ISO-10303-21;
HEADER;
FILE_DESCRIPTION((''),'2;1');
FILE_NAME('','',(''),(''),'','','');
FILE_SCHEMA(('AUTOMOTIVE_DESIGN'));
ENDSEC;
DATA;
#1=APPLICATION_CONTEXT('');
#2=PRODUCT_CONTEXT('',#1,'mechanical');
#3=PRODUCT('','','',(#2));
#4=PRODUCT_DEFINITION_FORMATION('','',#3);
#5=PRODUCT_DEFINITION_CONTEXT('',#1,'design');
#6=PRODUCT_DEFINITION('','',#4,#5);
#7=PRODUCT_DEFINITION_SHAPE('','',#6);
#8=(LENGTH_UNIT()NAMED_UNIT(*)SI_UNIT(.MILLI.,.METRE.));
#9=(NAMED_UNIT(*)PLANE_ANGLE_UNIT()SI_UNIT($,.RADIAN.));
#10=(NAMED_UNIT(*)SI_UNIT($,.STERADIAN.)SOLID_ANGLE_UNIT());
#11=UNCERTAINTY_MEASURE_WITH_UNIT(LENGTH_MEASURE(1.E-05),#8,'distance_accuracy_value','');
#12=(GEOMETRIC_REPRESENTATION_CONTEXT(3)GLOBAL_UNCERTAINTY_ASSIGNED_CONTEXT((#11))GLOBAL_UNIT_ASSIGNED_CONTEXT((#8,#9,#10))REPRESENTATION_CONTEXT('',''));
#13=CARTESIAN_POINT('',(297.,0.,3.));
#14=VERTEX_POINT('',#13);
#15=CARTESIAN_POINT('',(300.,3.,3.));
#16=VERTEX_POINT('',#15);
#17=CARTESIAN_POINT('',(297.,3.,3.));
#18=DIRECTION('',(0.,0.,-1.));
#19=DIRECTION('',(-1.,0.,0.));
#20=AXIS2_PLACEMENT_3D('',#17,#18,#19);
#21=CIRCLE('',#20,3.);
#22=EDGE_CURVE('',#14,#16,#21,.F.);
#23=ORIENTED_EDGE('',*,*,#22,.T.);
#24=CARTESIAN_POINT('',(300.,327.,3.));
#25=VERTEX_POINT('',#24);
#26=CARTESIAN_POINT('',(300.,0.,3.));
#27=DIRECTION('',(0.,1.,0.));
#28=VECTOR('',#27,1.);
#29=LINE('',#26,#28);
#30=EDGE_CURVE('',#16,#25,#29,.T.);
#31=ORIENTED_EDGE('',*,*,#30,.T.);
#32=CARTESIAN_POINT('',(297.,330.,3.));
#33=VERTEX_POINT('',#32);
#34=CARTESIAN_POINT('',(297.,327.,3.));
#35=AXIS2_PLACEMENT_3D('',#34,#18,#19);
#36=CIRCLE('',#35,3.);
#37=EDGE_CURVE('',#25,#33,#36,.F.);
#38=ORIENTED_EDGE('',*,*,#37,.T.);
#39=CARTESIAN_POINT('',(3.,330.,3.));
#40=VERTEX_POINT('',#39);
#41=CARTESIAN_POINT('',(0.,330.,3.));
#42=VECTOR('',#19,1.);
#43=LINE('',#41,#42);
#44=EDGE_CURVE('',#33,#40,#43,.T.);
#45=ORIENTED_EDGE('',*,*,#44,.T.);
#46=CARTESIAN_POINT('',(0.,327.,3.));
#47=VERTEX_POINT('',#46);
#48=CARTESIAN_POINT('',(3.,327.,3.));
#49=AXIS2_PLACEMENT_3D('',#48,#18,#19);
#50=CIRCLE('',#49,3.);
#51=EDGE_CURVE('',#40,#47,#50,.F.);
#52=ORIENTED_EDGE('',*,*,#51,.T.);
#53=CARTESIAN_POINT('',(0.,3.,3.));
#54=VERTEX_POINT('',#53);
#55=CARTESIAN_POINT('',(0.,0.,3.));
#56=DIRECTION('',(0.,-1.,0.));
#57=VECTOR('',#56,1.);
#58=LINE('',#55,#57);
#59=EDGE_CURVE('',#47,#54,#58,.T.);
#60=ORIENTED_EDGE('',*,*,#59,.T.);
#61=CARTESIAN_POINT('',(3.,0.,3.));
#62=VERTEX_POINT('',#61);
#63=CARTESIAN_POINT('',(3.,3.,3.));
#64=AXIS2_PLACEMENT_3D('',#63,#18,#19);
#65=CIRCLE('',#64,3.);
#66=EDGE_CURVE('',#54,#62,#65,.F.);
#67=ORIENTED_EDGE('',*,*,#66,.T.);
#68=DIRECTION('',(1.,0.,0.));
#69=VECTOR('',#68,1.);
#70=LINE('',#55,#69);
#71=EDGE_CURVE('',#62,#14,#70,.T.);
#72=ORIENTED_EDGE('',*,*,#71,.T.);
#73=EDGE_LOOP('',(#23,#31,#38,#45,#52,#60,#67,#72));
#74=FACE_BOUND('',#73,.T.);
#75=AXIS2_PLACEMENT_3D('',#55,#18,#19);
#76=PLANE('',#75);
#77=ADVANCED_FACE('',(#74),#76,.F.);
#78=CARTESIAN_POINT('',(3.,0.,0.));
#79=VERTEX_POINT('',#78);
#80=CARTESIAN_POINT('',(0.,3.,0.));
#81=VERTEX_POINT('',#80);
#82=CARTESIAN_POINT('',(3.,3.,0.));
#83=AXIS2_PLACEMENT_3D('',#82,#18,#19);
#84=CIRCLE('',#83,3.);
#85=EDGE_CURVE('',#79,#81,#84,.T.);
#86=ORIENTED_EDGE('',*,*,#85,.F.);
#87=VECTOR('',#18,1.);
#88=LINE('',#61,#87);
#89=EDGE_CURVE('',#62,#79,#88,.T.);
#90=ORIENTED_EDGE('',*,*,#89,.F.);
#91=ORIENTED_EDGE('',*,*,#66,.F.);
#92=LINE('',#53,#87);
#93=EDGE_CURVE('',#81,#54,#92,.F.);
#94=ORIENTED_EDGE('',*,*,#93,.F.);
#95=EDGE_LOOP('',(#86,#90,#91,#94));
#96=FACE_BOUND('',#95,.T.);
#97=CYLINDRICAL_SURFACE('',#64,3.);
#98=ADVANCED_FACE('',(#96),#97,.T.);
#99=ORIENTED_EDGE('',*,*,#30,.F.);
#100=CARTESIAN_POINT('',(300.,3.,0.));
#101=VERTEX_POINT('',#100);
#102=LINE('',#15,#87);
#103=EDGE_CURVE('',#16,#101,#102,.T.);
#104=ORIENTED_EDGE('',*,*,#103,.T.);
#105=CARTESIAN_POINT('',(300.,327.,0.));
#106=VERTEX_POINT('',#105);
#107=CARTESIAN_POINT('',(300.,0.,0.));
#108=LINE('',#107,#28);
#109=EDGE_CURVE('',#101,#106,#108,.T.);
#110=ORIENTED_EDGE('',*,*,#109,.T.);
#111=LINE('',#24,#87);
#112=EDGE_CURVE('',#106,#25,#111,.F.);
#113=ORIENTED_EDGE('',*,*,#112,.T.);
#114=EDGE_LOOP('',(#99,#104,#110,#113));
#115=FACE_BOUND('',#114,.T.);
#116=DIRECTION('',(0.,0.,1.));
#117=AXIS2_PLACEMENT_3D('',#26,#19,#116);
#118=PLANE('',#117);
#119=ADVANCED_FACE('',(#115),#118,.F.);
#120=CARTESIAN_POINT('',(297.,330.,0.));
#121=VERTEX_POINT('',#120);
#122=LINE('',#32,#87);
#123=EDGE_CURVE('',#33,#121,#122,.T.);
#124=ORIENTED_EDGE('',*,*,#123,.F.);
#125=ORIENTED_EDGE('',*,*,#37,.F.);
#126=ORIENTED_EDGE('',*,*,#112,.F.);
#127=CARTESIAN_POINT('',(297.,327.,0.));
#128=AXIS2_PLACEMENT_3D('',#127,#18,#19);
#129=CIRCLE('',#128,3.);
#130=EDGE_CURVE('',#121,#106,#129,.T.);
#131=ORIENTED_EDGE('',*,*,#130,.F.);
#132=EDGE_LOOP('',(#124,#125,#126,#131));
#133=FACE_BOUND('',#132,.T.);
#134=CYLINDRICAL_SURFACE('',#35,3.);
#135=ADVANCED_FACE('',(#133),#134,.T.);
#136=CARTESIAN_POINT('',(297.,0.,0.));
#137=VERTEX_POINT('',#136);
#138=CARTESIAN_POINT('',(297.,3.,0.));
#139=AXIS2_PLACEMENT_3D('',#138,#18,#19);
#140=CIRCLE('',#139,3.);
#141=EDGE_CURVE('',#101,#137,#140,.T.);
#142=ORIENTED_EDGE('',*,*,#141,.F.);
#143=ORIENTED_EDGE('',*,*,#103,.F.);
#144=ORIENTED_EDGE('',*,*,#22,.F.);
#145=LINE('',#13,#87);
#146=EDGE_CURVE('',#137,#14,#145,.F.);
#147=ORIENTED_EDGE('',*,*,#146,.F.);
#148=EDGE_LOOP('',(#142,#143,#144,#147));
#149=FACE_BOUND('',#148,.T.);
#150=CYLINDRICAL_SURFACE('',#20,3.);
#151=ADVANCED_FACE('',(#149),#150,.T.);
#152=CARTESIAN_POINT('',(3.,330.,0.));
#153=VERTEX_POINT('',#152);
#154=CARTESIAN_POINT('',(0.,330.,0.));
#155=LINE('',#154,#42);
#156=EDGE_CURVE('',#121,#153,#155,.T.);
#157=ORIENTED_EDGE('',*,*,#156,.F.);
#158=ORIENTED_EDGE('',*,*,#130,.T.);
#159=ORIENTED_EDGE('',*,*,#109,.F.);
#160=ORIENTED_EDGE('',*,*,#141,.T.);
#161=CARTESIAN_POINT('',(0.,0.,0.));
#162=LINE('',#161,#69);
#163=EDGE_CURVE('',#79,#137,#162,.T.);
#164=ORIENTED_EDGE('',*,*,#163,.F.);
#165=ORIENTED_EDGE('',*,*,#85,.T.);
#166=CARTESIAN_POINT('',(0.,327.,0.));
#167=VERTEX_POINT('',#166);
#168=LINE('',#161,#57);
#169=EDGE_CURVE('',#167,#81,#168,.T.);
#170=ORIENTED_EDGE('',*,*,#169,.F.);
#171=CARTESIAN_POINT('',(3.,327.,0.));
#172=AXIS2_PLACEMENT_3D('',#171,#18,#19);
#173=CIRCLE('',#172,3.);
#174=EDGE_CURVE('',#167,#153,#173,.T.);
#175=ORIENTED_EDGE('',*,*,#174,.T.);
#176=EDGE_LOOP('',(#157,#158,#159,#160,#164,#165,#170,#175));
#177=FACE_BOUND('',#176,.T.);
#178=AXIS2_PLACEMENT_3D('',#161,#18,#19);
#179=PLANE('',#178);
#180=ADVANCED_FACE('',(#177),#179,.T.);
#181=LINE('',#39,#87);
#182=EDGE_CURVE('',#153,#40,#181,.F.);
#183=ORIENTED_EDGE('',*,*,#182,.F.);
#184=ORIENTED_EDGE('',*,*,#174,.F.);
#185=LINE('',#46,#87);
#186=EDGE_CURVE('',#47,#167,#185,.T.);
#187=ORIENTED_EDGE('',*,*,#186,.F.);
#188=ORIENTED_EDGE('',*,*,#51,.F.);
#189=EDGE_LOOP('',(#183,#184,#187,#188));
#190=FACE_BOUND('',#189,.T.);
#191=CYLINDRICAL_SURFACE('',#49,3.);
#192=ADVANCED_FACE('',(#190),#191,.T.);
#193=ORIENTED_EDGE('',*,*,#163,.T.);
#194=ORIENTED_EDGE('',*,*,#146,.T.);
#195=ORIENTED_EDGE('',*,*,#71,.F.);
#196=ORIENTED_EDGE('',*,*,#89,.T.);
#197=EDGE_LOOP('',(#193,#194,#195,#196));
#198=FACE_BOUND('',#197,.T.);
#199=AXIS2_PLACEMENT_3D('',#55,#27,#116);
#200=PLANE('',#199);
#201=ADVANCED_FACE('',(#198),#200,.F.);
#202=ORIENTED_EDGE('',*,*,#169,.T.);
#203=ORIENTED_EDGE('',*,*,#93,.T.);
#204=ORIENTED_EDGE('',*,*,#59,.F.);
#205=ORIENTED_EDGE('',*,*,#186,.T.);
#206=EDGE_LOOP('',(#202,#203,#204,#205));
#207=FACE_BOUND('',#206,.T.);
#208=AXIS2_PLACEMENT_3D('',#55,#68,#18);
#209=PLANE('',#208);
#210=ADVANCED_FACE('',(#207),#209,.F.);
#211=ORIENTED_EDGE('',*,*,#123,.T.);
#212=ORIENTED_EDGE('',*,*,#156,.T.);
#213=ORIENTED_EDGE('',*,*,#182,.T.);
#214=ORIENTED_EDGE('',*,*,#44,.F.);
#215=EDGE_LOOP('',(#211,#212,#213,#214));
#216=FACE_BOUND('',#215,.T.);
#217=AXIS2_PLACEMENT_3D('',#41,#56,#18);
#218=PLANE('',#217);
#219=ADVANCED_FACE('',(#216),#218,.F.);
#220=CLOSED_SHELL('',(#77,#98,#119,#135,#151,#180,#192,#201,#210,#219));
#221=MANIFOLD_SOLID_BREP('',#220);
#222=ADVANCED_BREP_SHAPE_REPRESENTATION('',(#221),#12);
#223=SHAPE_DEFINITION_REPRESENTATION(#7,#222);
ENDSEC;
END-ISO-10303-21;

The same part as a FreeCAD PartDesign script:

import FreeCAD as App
import Part
import Sketcher
from FreeCAD import Vector


def edges_at(feature, points):
    """Names of the edges that pass closest to the given points."""
    edges = feature.Shape.Edges
    near = lambda p: min(range(len(edges)), key=lambda i: edges[i].distToShape(Part.Vertex(*p))[0])
    return sorted({f"Edge{near(p) + 1}" for p in points})

doc = App.newDocument("Part")
body = doc.addObject("PartDesign::Body", "Body")

# Sketch on XY plane
sketch1 = body.newObject("Sketcher::SketchObject", "Sketch")
sketch1.AttachmentSupport = (doc.getObject("XY_Plane"), [""])
sketch1.MapMode = "FlatFace"
sketch1.addGeometry([
    Part.LineSegment(Vector(0, 330, 0), Vector(0, 0, 0)),
    Part.LineSegment(Vector(0, 0, 0), Vector(300, 0, 0)),
    Part.LineSegment(Vector(300, 0, 0), Vector(300, 330, 0)),
    Part.LineSegment(Vector(300, 330, 0), Vector(0, 330, 0)),
], False)
sketch1.addConstraint([
    Sketcher.Constraint("Coincident", 0, 2, 1, 1),
    Sketcher.Constraint("Coincident", 1, 2, 2, 1),
    Sketcher.Constraint("Coincident", 2, 2, 3, 1),
    Sketcher.Constraint("Coincident", 3, 2, 0, 1),
    Sketcher.Constraint("Vertical", 0),
    Sketcher.Constraint("Horizontal", 1),
    Sketcher.Constraint("Vertical", 2),
    Sketcher.Constraint("Horizontal", 3),
    Sketcher.Constraint("Coincident", 0, 2, -1, 1),
    Sketcher.Constraint("DistanceX", 1, 1, 1, 2, 300.0),
    Sketcher.Constraint("DistanceY", 0, 2, 0, 1, 330.0),
])
pad1 = body.newObject("PartDesign::Pad", "Pad")
pad1.Profile = sketch1
pad1.Length = 3
doc.recompute()

fillet = body.newObject("PartDesign::Fillet", "Fillet")
fillet.Base = (pad1, edges_at(pad1, [
    (0, 330, 1.5),
    (300, 330, 1.5),
    (300, 0, 1.5),
    (0, 0, 1.5),
]))
fillet.Radius = 3

doc.recompute()
